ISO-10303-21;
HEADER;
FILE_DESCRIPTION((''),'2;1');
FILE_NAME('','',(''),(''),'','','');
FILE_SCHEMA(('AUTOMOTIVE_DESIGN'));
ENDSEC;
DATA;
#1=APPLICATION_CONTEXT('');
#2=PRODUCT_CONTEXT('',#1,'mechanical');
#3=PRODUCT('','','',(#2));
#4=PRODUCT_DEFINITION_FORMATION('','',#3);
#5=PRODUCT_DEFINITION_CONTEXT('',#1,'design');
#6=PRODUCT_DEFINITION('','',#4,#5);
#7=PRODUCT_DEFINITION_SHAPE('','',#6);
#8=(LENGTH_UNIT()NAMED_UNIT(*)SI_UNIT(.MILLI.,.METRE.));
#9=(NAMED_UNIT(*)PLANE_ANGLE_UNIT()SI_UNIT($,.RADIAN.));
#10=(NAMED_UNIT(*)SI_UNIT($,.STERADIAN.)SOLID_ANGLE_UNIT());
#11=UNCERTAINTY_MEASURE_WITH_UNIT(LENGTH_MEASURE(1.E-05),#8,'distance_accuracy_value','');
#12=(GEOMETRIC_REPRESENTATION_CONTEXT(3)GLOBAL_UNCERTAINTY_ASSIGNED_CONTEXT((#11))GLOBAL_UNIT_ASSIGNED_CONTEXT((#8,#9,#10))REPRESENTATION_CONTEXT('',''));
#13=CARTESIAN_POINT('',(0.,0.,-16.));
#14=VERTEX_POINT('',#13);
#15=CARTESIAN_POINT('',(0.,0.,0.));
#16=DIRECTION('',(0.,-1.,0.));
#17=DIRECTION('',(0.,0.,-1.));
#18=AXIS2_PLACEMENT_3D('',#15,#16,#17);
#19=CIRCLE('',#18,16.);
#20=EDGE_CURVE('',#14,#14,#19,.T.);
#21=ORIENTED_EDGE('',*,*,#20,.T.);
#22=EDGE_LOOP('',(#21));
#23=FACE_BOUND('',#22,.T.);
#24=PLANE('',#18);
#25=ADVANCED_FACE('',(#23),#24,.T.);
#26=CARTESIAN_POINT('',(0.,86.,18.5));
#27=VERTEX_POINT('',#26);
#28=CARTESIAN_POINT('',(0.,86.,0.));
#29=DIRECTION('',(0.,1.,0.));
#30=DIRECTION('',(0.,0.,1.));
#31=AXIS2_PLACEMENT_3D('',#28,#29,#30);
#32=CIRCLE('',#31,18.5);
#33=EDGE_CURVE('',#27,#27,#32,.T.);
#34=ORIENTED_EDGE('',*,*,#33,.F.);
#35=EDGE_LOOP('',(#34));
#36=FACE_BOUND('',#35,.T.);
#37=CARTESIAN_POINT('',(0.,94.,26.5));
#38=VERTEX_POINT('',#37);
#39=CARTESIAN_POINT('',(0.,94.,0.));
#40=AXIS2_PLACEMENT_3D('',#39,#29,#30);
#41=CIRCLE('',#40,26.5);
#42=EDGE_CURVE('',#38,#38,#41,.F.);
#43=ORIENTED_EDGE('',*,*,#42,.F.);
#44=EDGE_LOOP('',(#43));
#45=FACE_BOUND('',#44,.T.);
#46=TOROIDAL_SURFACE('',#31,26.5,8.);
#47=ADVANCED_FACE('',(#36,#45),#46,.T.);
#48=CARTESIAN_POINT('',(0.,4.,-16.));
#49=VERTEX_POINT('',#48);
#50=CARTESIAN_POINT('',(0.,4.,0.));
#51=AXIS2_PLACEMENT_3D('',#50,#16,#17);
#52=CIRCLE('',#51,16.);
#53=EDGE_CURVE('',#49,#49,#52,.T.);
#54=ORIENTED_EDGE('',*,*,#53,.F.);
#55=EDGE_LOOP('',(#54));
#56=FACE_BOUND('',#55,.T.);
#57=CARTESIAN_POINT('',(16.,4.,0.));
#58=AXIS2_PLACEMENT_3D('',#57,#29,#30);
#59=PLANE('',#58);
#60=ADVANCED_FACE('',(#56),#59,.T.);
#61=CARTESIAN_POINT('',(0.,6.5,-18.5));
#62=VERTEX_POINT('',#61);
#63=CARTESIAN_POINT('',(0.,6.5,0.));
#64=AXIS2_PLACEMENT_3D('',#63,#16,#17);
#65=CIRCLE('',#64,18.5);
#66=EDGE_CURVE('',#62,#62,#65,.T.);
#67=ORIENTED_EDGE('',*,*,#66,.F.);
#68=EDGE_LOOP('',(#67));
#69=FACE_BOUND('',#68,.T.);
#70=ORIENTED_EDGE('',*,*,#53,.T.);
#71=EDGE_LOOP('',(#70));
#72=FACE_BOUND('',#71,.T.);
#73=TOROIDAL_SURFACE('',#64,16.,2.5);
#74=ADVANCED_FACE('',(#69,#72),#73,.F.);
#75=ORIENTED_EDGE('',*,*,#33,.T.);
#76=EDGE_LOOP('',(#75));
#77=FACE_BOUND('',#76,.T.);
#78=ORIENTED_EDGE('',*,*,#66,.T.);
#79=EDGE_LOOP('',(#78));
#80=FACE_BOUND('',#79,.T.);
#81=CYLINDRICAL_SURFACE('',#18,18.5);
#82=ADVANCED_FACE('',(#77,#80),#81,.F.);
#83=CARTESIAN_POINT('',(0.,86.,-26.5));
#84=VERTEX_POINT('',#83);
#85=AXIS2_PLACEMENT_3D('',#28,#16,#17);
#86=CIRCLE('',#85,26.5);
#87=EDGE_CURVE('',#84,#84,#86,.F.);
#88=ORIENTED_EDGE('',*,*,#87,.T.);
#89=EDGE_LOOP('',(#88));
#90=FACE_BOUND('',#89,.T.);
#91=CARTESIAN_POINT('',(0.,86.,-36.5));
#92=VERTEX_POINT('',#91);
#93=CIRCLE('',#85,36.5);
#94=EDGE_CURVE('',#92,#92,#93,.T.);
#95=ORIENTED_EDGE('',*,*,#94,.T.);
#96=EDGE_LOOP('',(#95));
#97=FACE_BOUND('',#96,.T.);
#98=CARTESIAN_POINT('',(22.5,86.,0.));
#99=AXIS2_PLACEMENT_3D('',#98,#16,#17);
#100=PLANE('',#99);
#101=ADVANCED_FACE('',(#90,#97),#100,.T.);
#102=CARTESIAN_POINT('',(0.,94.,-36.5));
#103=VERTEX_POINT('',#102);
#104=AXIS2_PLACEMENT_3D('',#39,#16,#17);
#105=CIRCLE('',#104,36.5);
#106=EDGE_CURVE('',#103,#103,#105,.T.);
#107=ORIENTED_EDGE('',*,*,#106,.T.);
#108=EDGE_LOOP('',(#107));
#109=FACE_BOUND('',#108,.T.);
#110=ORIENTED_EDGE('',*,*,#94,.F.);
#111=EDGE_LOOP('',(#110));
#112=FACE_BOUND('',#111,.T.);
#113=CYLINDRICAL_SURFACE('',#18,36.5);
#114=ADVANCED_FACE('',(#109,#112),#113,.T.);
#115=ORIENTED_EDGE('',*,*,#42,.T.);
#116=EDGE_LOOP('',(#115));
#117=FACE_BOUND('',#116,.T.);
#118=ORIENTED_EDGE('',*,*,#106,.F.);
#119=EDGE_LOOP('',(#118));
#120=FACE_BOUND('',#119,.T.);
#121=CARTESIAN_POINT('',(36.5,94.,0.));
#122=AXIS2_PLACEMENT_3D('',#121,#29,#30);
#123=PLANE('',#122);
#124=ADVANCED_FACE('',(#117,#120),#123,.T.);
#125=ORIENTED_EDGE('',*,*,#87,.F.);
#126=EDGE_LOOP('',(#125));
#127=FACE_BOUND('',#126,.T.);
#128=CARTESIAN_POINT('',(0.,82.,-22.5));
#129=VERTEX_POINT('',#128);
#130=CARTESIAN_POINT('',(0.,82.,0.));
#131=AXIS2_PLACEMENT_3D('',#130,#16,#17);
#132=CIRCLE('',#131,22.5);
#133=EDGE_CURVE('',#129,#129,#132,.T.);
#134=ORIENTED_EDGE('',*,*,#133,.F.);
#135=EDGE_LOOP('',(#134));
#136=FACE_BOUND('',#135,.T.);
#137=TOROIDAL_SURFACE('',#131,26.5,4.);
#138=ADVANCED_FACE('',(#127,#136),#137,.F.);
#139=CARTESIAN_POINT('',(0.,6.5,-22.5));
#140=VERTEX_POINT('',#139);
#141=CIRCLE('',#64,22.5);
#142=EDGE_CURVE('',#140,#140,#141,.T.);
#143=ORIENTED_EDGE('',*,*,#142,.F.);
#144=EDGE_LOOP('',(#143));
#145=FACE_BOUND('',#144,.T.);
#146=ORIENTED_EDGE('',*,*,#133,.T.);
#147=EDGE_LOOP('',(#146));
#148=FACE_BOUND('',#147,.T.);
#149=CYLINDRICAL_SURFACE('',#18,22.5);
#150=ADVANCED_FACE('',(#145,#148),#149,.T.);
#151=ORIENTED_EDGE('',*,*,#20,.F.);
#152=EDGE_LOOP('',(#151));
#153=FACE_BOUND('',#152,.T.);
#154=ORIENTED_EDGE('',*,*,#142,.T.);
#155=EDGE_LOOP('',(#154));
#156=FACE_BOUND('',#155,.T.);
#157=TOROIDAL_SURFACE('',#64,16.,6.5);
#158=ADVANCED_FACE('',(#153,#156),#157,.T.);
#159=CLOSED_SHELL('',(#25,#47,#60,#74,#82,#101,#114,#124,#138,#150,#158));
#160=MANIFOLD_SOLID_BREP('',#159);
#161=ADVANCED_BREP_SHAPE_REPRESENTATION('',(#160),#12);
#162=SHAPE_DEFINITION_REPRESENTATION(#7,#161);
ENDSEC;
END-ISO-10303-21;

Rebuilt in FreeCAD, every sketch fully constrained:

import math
import FreeCAD as App
import Part
import Sketcher
Q = App.Units.Quantity


def edges_at(feature, points):
    """Names of the edges that pass closest to the given points."""
    edges = feature.Shape.Edges
    near = lambda p: min(range(len(edges)), key=lambda i: edges[i].distToShape(Part.Vertex(*p))[0])
    return sorted({f"Edge{near(p) + 1}" for p in points})

doc = App.newDocument("Part")
body = doc.addObject("PartDesign::Body", "Body")

# Sketch on XY plane
sketch1 = body.newObject("Sketcher::SketchObject", "Sketch")
sketch1.AttachmentSupport = (doc.getObject("XY_Plane"), [""])
sketch1.MapMode = "FlatFace"
sketch1.addGeometry(Part.LineSegment(App.Vector(22.5, 6.5, 0), App.Vector(22.5, 86, 0)), False)
sketch1.addGeometry(Part.LineSegment(App.Vector(22.5, 86, 0), App.Vector(36.5, 86, 0)), False)
sketch1.addGeometry(Part.LineSegment(App.Vector(36.5, 86, 0), App.Vector(36.5, 94, 0)), False)
sketch1.addGeometry(Part.LineSegment(App.Vector(36.5, 94, 0), App.Vector(18.5, 94, 0)), False)
sketch1.addGeometry(Part.LineSegment(App.Vector(18.5, 94, 0), App.Vector(18.5, 6.5, 0)), False)
sketch1.addGeometry(Part.ArcOfCircle(Part.Circle(App.Vector(16, 6.5, 0), App.Vector(0, 0, 1), 2.5), math.radians(-90), math.radians(0)), False)
sketch1.addGeometry(Part.LineSegment(App.Vector(16, 4, 0), App.Vector(0, 4, 0)), False)
sketch1.addGeometry(Part.LineSegment(App.Vector(0, 4, 0), App.Vector(0, 0, 0)), False)
sketch1.addGeometry(Part.LineSegment(App.Vector(0, 0, 0), App.Vector(16, 0, 0)), False)
sketch1.addGeometry(Part.ArcOfCircle(Part.Circle(App.Vector(16, 6.5, 0), App.Vector(0, 0, 1), 6.5), math.radians(-90), math.radians(0)), False)
sketch1.addConstraint(Sketcher.Constraint("Coincident", 0, 2, 1, 1))
sketch1.addConstraint(Sketcher.Constraint("Coincident", 1, 2, 2, 1))
sketch1.addConstraint(Sketcher.Constraint("Coincident", 2, 2, 3, 1))
sketch1.addConstraint(Sketcher.Constraint("Coincident", 3, 2, 4, 1))
sketch1.addConstraint(Sketcher.Constraint("Tangent", 4, 2, 5, 2))
sketch1.addConstraint(Sketcher.Constraint("Tangent", 5, 1, 6, 1))
sketch1.addConstraint(Sketcher.Constraint("Coincident", 6, 2, 7, 1))
sketch1.addConstraint(Sketcher.Constraint("Coincident", 7, 2, 8, 1))
sketch1.addConstraint(Sketcher.Constraint("Tangent", 8, 2, 9, 1))
sketch1.addConstraint(Sketcher.Constraint("Tangent", 9, 2, 0, 1))
sketch1.addConstraint(Sketcher.Constraint("Vertical", 0))
sketch1.addConstraint(Sketcher.Constraint("Horizontal", 1))
sketch1.addConstraint(Sketcher.Constraint("Vertical", 2))
sketch1.addConstraint(Sketcher.Constraint("Horizontal", 3))
sketch1.addConstraint(Sketcher.Constraint("Vertical", 4))
sketch1.addConstraint(Sketcher.Constraint("Horizontal", 6))
sketch1.addConstraint(Sketcher.Constraint("Vertical", 7))
sketch1.addConstraint(Sketcher.Constraint("Horizontal", 8))
sketch1.addConstraint(Sketcher.Constraint("Coincident", 7, 2, -1, 1))
sketch1.addConstraint(Sketcher.Constraint("Coincident", 9, 3, 5, 3))
sketch1.addConstraint(Sketcher.Constraint("Radius", 5, Q("2.5 mm")))
sketch1.addConstraint(Sketcher.Constraint("Radius", 9, Q("6.5 mm")))
sketch1.addConstraint(Sketcher.Constraint("DistanceX", 1, 1, 1, 2, Q("14 mm")))
sketch1.addConstraint(Sketcher.Constraint("DistanceX", 6, 2, 6, 1, Q("16 mm")))
sketch1.addConstraint(Sketcher.Constraint("DistanceY", 2, 1, 2, 2, Q("8 mm")))
sketch1.addConstraint(Sketcher.Constraint("DistanceY", 0, 1, 0, 2, Q("79.5 mm")))
revolution = body.newObject("PartDesign::Revolution", "Revolution")
revolution.Profile = sketch1
revolution.ReferenceAxis = (sketch1, ["V_Axis"])
revolution.Angle = 360
doc.recompute()

fillet = body.newObject("PartDesign::Fillet", "Fillet")
fillet.Base = (revolution, edges_at(revolution, [(0, 86, 22.5)]))
fillet.Radius = 4
doc.recompute()

fillet2 = body.newObject("PartDesign::Fillet", "Fillet001")
fillet2.Base = (fillet, edges_at(fillet, [(0, 94, 18.5)]))
fillet2.Radius = 8

doc.recompute()
